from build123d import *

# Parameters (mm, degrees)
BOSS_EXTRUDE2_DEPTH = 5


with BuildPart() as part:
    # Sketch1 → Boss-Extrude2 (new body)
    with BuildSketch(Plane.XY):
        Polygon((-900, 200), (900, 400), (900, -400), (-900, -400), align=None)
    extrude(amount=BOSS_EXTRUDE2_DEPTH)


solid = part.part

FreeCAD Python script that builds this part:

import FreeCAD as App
import Part
import Sketcher

doc = App.newDocument("Part")
body = doc.addObject("PartDesign::Body", "Body")

sketch1 = doc.addObject("Sketcher::SketchObject", "Sketch")
body.addObject(sketch1)
sketch1.AttachmentSupport = (doc.XY_Plane, [""])
sketch1.MapMode = "FlatFace"
sketch1.addGeometry([
    Part.LineSegment(App.Vector(900, 400, 0), App.Vector(-900, 200, 0)),
    Part.LineSegment(App.Vector(-900, 200, 0), App.Vector(-900, -400, 0)),
    Part.LineSegment(App.Vector(-900, -400, 0), App.Vector(900, -400, 0)),
    Part.LineSegment(App.Vector(900, -400, 0), App.Vector(900, 400, 0)),
], False)
sketch1.addConstraint([
    Sketcher.Constraint("Coincident", 0, 2, 1, 1),
    Sketcher.Constraint("Coincident", 1, 2, 2, 1),
    Sketcher.Constraint("Coincident", 2, 2, 3, 1),
    Sketcher.Constraint("Coincident", 3, 2, 0, 1),
    Sketcher.Constraint("Vertical", 1),
    Sketcher.Constraint("Horizontal", 2),
    Sketcher.Constraint("Vertical", 3),
    Sketcher.Constraint("Symmetric", 1, 2, 3, 2, -1, 1),
    Sketcher.Constraint("DistanceX", 2, 1, 2, 2, 1800.0),
    Sketcher.Constraint("DistanceY", 1, 2, 1, 1, 600.0),
    Sketcher.Constraint("DistanceY", 3, 1, 3, 2, 800.0),
])
pad1 = doc.addObject("PartDesign::Pad", "Pad")
body.addObject(pad1)
pad1.Profile = sketch1
pad1.Length = 5

doc.recompute()
